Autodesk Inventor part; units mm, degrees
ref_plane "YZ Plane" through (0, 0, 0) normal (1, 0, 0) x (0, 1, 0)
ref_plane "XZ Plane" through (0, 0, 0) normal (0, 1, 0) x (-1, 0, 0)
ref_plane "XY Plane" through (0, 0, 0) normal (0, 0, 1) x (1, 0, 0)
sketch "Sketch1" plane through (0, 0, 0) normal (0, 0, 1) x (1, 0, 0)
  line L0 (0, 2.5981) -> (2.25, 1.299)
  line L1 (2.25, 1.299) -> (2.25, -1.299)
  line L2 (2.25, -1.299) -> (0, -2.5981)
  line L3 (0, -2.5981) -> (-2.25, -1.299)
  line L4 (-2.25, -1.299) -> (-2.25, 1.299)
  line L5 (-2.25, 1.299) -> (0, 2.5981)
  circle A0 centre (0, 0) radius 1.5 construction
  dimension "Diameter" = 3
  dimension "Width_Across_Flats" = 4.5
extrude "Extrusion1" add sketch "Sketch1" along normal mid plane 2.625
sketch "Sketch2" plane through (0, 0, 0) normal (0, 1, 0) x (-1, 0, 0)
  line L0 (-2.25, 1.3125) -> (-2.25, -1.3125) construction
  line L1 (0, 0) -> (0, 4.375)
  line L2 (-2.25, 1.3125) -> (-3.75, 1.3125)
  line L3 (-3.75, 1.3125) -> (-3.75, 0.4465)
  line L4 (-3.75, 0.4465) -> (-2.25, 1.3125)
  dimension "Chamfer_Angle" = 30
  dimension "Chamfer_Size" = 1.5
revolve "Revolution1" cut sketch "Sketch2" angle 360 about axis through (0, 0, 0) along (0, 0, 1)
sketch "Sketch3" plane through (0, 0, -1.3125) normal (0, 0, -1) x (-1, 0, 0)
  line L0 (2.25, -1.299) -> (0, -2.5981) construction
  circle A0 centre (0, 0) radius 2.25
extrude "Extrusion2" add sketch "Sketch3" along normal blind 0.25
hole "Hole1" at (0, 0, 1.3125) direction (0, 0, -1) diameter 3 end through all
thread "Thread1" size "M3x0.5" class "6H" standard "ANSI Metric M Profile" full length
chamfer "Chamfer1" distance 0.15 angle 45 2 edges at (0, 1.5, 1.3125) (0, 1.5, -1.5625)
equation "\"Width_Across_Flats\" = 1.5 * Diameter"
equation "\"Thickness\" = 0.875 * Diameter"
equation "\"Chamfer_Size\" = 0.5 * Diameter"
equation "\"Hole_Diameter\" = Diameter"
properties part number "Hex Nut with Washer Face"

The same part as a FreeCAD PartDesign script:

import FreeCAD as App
import Part
import Sketcher

V = App.Vector
Q = App.Units.Quantity


def edges_at(feature, points):
    """Names of the edges that pass closest to the given points."""
    edges = feature.Shape.Edges
    near = lambda p: min(range(len(edges)), key=lambda i: edges[i].distToShape(Part.Vertex(*p))[0])
    return sorted({f"Edge{near(p) + 1}" for p in points})

doc = App.newDocument("Part")
params = doc.addObject("Spreadsheet::Sheet", "Params")
for row, (alias, value) in enumerate([
    ("pad1_length", "2.625 mm"),
    ("sketch2_width", "1.5 mm"),
    ("groove_angle", "360 deg"),
    ("sketch3_diameter", "4.5 mm"),
    ("pad2_length", "0.25 mm"),
    ("sketch4_diameter", "3 mm"),
    ("hole_diameter", "3 mm"),
    ("chamfer_size", "0.15 mm"),
], start=1):
    params.set(f"A{row}", alias)
    params.set(f"B{row}", "=" + value)
    params.setAlias(f"B{row}", alias)

body = doc.addObject("PartDesign::Body", "Body")

# Sketch on XY plane
sketch1 = doc.addObject("Sketcher::SketchObject", "Sketch")
body.addObject(sketch1)
sketch1.AttachmentSupport = (doc.XY_Plane, [""])
sketch1.MapMode = "FlatFace"
sketch1.addGeometry(Part.LineSegment(V(2.2, 1.3, 0), V(0, 2.6, 0)), False)
sketch1.addGeometry(Part.LineSegment(V(0, 2.6, 0), V(-2.2, 1.3, 0)), False)
sketch1.addGeometry(Part.LineSegment(V(-2.2, 1.3, 0), V(-2.2, -1.3, 0)), False)
sketch1.addGeometry(Part.LineSegment(V(-2.2, -1.3, 0), V(0, -2.6, 0)), False)
sketch1.addGeometry(Part.LineSegment(V(0, -2.6, 0), V(2.2, -1.3, 0)), False)
sketch1.addGeometry(Part.LineSegment(V(2.2, -1.3, 0), V(2.2, 1.3, 0)), False)
sketch1.addConstraint(Sketcher.Constraint("Coincident", 0, 2, 1, 1))
sketch1.addConstraint(Sketcher.Constraint("Coincident", 1, 2, 2, 1))
sketch1.addConstraint(Sketcher.Constraint("Coincident", 2, 2, 3, 1))
sketch1.addConstraint(Sketcher.Constraint("Coincident", 3, 2, 4, 1))
sketch1.addConstraint(Sketcher.Constraint("Coincident", 4, 2, 5, 1))
sketch1.addConstraint(Sketcher.Constraint("Coincident", 5, 2, 0, 1))
sketch1.addConstraint(Sketcher.Constraint("Vertical", 2))
sketch1.addConstraint(Sketcher.Constraint("Vertical", 5))
sketch1.addConstraint(Sketcher.Constraint("Symmetric", 0, 2, 3, 2, -1, 1))
sketch1.addConstraint(Sketcher.Constraint("Symmetric", 1, 2, 4, 2, -1, 1))
sketch1.addConstraint(Sketcher.Constraint("PointOnObject", 0, 2, -2))
sketch1.addConstraint(Sketcher.Constraint("Parallel", 0, 3))
sketch1.addConstraint(Sketcher.Constraint("Horizontal", 2, 2, 4, 2))
sketch1.addConstraint(Sketcher.Constraint("DistanceX", 2, 2, 4, 2, Q("4.5 mm")))
sketch1.addConstraint(Sketcher.Constraint("Angle", 0, Q("149.9988 deg")))
sketch1.addConstraint(Sketcher.Constraint("DistanceY", 2, 2, 2, 1, Q("2.598 mm")))
pad1 = doc.addObject("PartDesign::Pad", "Pad")
body.addObject(pad1)
pad1.Profile = sketch1
pad1.setExpression("Length", "Params.pad1_length")
pad1.Midplane = True

# Sketch on XZ plane
sketch2 = doc.addObject("Sketcher::SketchObject", "Sketch001")
body.addObject(sketch2)
sketch2.AttachmentSupport = (doc.XZ_Plane, [""])
sketch2.MapMode = "FlatFace"
sketch2.addGeometry(Part.LineSegment(V(3.8, 0.4, 0), V(2.2, 1.3, 0)), False)
sketch2.addGeometry(Part.LineSegment(V(2.2, 1.3, 0), V(3.8, 1.3, 0)), False)
sketch2.addGeometry(Part.LineSegment(V(3.8, 1.3, 0), V(3.8, 0.4, 0)), False)
sketch2.addConstraint(Sketcher.Constraint("Coincident", 0, 2, 1, 1))
sketch2.addConstraint(Sketcher.Constraint("Coincident", 1, 2, 2, 1))
sketch2.addConstraint(Sketcher.Constraint("Coincident", 2, 2, 0, 1))
sketch2.addConstraint(Sketcher.Constraint("Horizontal", 1))
sketch2.addConstraint(Sketcher.Constraint("Vertical", 2))
sketch2.addConstraint(Sketcher.Constraint("DistanceX", 1, 1, 1, 2, Q("1.5 mm")))
sketch2.addConstraint(Sketcher.Constraint("Angle", 0, Q("150.0007 deg")))
sketch2.addConstraint(Sketcher.Constraint("DistanceX", -1, 1, 0, 2, Q("2.25 mm")))
sketch2.addConstraint(Sketcher.Constraint("DistanceY", -1, 1, 0, 2, Q("1.3125 mm")))
sketch2.setExpression("Constraints[5]", "Params.sketch2_width")
groove = doc.addObject("PartDesign::Groove", "Groove")
body.addObject(groove)
groove.Profile = sketch2
groove.ReferenceAxis = (sketch2, ["V_Axis"])
groove.setExpression("Angle", "Params.groove_angle")

# Sketch on XY plane
sketch3 = doc.addObject("Sketcher::SketchObject", "Sketch002")
body.addObject(sketch3)
sketch3.AttachmentSupport = (doc.XY_Plane, [""])
sketch3.MapMode = "FlatFace"
sketch3.AttachmentOffset = App.Placement(V(0, 0, -1.3125), App.Rotation())
sketch3.addGeometry(Part.Circle(V(0, 0, 0), V(0, 0, 1), 2.2), False)
sketch3.addConstraint(Sketcher.Constraint("Coincident", 0, 3, -1, 1))
sketch3.addConstraint(Sketcher.Constraint("Diameter", 0, Q("4.5 mm")))
sketch3.setExpression("Constraints[1]", "Params.sketch3_diameter")
pad2 = doc.addObject("PartDesign::Pad", "Pad001")
body.addObject(pad2)
pad2.Profile = sketch3
pad2.setExpression("Length", "Params.pad2_length")
pad2.Reversed = True

# Sketch on XY plane
sketch4 = doc.addObject("Sketcher::SketchObject", "Sketch003")
body.addObject(sketch4)
sketch4.AttachmentSupport = (doc.XY_Plane, [""])
sketch4.MapMode = "FlatFace"
sketch4.AttachmentOffset = App.Placement(V(0, 0, 1.3125), App.Rotation())
sketch4.addGeometry(Part.Circle(V(0, 0, 0), V(0, 0, 1), 1.5), False)
sketch4.addConstraint(Sketcher.Constraint("Coincident", 0, 3, -1, 1))
sketch4.addConstraint(Sketcher.Constraint("Diameter", 0, Q("3 mm")))
sketch4.setExpression("Constraints[1]", "Params.sketch4_diameter")
doc.recompute()
hole = doc.addObject("PartDesign::Hole", "Hole")
body.addObject(hole)
hole.Profile = sketch4
hole.ThreadType = "None"
hole.setExpression("Diameter", "Params.hole_diameter")
hole.DepthType = "ThroughAll"
doc.recompute()

chamfer = doc.addObject("PartDesign::Chamfer", "Chamfer")
body.addObject(chamfer)
chamfer.Base = (hole, edges_at(hole, [(0, 1.5, 1.312), (0, 1.5, -1.562)]))
chamfer.setExpression("Size", "Params.chamfer_size")

doc.recompute()
